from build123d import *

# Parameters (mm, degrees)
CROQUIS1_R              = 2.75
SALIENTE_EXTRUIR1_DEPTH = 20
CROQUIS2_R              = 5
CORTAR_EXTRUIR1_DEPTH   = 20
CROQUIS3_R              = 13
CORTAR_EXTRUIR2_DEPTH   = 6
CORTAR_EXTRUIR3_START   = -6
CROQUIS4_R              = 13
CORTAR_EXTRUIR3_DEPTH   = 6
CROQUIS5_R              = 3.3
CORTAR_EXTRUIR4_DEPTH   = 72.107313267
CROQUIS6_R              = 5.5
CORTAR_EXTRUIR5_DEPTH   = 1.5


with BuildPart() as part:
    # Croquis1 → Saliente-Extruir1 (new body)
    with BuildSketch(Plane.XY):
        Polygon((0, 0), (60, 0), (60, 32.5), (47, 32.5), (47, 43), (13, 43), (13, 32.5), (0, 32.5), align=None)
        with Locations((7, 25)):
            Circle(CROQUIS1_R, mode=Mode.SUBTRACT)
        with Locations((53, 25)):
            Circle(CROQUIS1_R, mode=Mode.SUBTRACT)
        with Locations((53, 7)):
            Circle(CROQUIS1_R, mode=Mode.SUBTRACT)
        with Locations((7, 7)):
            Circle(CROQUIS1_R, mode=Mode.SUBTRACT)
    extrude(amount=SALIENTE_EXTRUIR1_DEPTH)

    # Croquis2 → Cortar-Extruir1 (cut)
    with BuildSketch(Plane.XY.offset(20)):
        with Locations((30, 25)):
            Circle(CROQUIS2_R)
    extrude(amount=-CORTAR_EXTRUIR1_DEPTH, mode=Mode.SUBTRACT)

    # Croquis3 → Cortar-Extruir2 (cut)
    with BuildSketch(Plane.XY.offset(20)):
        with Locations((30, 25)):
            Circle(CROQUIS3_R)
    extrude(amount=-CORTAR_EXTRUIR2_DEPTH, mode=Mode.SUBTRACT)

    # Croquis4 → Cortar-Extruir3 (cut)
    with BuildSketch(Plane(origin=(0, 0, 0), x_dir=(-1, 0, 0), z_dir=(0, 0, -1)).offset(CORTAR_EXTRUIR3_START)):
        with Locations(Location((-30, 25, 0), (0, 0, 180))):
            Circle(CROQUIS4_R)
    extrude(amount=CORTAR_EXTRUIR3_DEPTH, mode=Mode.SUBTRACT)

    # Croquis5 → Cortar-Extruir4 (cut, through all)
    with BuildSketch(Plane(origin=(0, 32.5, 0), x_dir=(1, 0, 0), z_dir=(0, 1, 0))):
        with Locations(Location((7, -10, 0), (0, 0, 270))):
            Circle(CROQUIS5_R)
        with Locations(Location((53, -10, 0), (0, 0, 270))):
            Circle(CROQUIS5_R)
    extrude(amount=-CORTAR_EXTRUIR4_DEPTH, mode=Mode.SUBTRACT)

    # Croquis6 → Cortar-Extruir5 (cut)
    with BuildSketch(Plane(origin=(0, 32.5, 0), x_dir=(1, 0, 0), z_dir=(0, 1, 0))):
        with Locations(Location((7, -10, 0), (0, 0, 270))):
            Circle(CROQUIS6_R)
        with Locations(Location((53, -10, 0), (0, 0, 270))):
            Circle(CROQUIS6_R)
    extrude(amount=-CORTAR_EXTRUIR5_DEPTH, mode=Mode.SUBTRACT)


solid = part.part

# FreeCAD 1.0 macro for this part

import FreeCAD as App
import Part
import Sketcher

doc = App.newDocument("Part")
body = doc.addObject("PartDesign::Body", "Body")

# Sketch on XY plane
sketch1 = body.newObject("Sketcher::SketchObject", "Sketch")
sketch1.AttachmentSupport = (doc.getObject("XY_Plane"), [""])
sketch1.MapMode = "FlatFace"
sketch1.addGeometry(Part.LineSegment(App.Vector(0, 0, 0), App.Vector(60, 0, 0)), False)
sketch1.addGeometry(Part.LineSegment(App.Vector(60, 0, 0), App.Vector(60, 32.5, 0)), False)
sketch1.addGeometry(Part.LineSegment(App.Vector(60, 32.5, 0), App.Vector(47, 32.5, 0)), False)
sketch1.addGeometry(Part.LineSegment(App.Vector(47, 32.5, 0), App.Vector(47, 43, 0)), False)
sketch1.addGeometry(Part.LineSegment(App.Vector(47, 43, 0), App.Vector(13, 43, 0)), False)
sketch1.addGeometry(Part.LineSegment(App.Vector(13, 43, 0), App.Vector(13, 32.5, 0)), False)
sketch1.addGeometry(Part.LineSegment(App.Vector(13, 32.5, 0), App.Vector(0, 32.5, 0)), False)
sketch1.addGeometry(Part.LineSegment(App.Vector(0, 32.5, 0), App.Vector(0, 0, 0)), False)
sketch1.addGeometry(Part.Circle(App.Vector(7, 7, 0), App.Vector(0, 0, 1), 2.75), False)
sketch1.addGeometry(Part.Circle(App.Vector(53, 7, 0), App.Vector(0, 0, 1), 2.75), False)
sketch1.addGeometry(Part.Circle(App.Vector(7, 25, 0), App.Vector(0, 0, 1), 2.75), False)
sketch1.addGeometry(Part.Circle(App.Vector(53, 25, 0), App.Vector(0, 0, 1), 2.75), False)
sketch1.addConstraint(Sketcher.Constraint("Coincident", 0, 2, 1, 1))
sketch1.addConstraint(Sketcher.Constraint("Coincident", 1, 2, 2, 1))
sketch1.addConstraint(Sketcher.Constraint("Coincident", 2, 2, 3, 1))
sketch1.addConstraint(Sketcher.Constraint("Coincident", 3, 2, 4, 1))
sketch1.addConstraint(Sketcher.Constraint("Coincident", 4, 2, 5, 1))
sketch1.addConstraint(Sketcher.Constraint("Coincident", 5, 2, 6, 1))
sketch1.addConstraint(Sketcher.Constraint("Coincident", 6, 2, 7, 1))
sketch1.addConstraint(Sketcher.Constraint("Coincident", 7, 2, 0, 1))
sketch1.addConstraint(Sketcher.Constraint("Horizontal", 0))
sketch1.addConstraint(Sketcher.Constraint("Vertical", 1))
sketch1.addConstraint(Sketcher.Constraint("Horizontal", 2))
sketch1.addConstraint(Sketcher.Constraint("Vertical", 3))
sketch1.addConstraint(Sketcher.Constraint("Horizontal", 4))
sketch1.addConstraint(Sketcher.Constraint("Vertical", 5))
sketch1.addConstraint(Sketcher.Constraint("Horizontal", 6))
sketch1.addConstraint(Sketcher.Constraint("Vertical", 7))
sketch1.addConstraint(Sketcher.Constraint("Coincident", 7, 2, -1, 1))
sketch1.addConstraint(Sketcher.Constraint("Equal", 8, 9))
sketch1.addConstraint(Sketcher.Constraint("Equal", 9, 10))
sketch1.addConstraint(Sketcher.Constraint("Equal", 10, 11))
sketch1.addConstraint(Sketcher.Constraint("Horizontal", 8, 3, 9, 3))
sketch1.addConstraint(Sketcher.Constraint("Horizontal", 10, 3, 11, 3))
sketch1.addConstraint(Sketcher.Constraint("Horizontal", 2, 2, 5, 2))
sketch1.addConstraint(Sketcher.Constraint("Vertical", 8, 3, 10, 3))
sketch1.addConstraint(Sketcher.Constraint("Vertical", 9, 3, 11, 3))
sketch1.addConstraint(Sketcher.Constraint("Equal", 2, 6))
sketch1.addConstraint(Sketcher.Constraint("Diameter", 8, 5.5))
sketch1.addConstraint(Sketcher.Constraint("DistanceX", 0, 1, 0, 2, 60.0))
sketch1.addConstraint(Sketcher.Constraint("DistanceX", 2, 2, 2, 1, 13.0))
sketch1.addConstraint(Sketcher.Constraint("DistanceY", 1, 1, 1, 2, 32.5))
sketch1.addConstraint(Sketcher.Constraint("DistanceY", 3, 1, 3, 2, 10.5))
sketch1.addConstraint(Sketcher.Constraint("DistanceX", -1, 1, 8, 3, 7.0))
sketch1.addConstraint(Sketcher.Constraint("DistanceY", -1, 1, 8, 3, 7.0))
sketch1.addConstraint(Sketcher.Constraint("DistanceX", -1, 1, 9, 3, 53.0))
sketch1.addConstraint(Sketcher.Constraint("DistanceY", -1, 1, 10, 3, 25.0))
pad1 = body.newObject("PartDesign::Pad", "Pad")
pad1.Profile = sketch1
pad1.Length = 20

# Sketch on XY plane
sketch2 = body.newObject("Sketcher::SketchObject", "Sketch001")
sketch2.AttachmentSupport = (doc.getObject("XY_Plane"), [""])
sketch2.MapMode = "FlatFace"
sketch2.AttachmentOffset = App.Placement(App.Vector(0, 0, 20), App.Rotation())
sketch2.addGeometry(Part.Circle(App.Vector(30, 25, 0), App.Vector(0, 0, 1), 5), False)
sketch2.addConstraint(Sketcher.Constraint("Diameter", 0, 10.0))
sketch2.addConstraint(Sketcher.Constraint("DistanceX", -1, 1, 0, 3, 30.0))
sketch2.addConstraint(Sketcher.Constraint("DistanceY", -1, 1, 0, 3, 25.0))
pocket1 = body.newObject("PartDesign::Pocket", "Pocket")
pocket1.Profile = sketch2
pocket1.Length = 20

# Sketch on XY plane
sketch3 = body.newObject("Sketcher::SketchObject", "Sketch002")
sketch3.AttachmentSupport = (doc.getObject("XY_Plane"), [""])
sketch3.MapMode = "FlatFace"
sketch3.AttachmentOffset = App.Placement(App.Vector(0, 0, 20), App.Rotation())
sketch3.addGeometry(Part.Circle(App.Vector(30, 25, 0), App.Vector(0, 0, 1), 13), False)
sketch3.addConstraint(Sketcher.Constraint("Diameter", 0, 26.0))
sketch3.addConstraint(Sketcher.Constraint("DistanceX", -1, 1, 0, 3, 30.0))
sketch3.addConstraint(Sketcher.Constraint("DistanceY", -1, 1, 0, 3, 25.0))
pocket2 = body.newObject("PartDesign::Pocket", "Pocket001")
pocket2.Profile = sketch3
pocket2.Length = 6

# Sketch on XY plane
sketch4 = body.newObject("Sketcher::SketchObject", "Sketch003")
sketch4.AttachmentSupport = (doc.getObject("XY_Plane"), [""])
sketch4.MapMode = "FlatFace"
sketch4.AttachmentOffset = App.Placement(App.Vector(0, 0, 6), App.Rotation())
sketch4.addGeometry(Part.Circle(App.Vector(30, 25, 0), App.Vector(0, 0, 1), 13), False)
sketch4.addConstraint(Sketcher.Constraint("Diameter", 0, 26.0))
sketch4.addConstraint(Sketcher.Constraint("DistanceX", -1, 1, 0, 3, 30.0))
sketch4.addConstraint(Sketcher.Constraint("DistanceY", -1, 1, 0, 3, 25.0))
pocket3 = body.newObject("PartDesign::Pocket", "Pocket002")
pocket3.Profile = sketch4
pocket3.Length = 6

# Sketch on XZ plane
sketch5 = body.newObject("Sketcher::SketchObject", "Sketch004")
sketch5.AttachmentSupport = (doc.getObject("XZ_Plane"), [""])
sketch5.MapMode = "FlatFace"
sketch5.AttachmentOffset = App.Placement(App.Vector(0, 0, -32.5), App.Rotation())
sketch5.addGeometry(Part.Circle(App.Vector(7, 10, 0), App.Vector(0, 0, 1), 3.3), False)
sketch5.addGeometry(Part.Circle(App.Vector(53, 10, 0), App.Vector(0, 0, 1), 3.3), False)
sketch5.addConstraint(Sketcher.Constraint("Equal", 0, 1))
sketch5.addConstraint(Sketcher.Constraint("Horizontal", 0, 3, 1, 3))
sketch5.addConstraint(Sketcher.Constraint("Diameter", 0, 6.6))
sketch5.addConstraint(Sketcher.Constraint("DistanceX", -1, 1, 0, 3, 7.0))
sketch5.addConstraint(Sketcher.Constraint("DistanceY", -1, 1, 0, 3, 10.0))
sketch5.addConstraint(Sketcher.Constraint("DistanceX", -1, 1, 1, 3, 53.0))
pocket4 = body.newObject("PartDesign::Pocket", "Pocket003")
pocket4.Profile = sketch5
pocket4.Type = "ThroughAll"
pocket4.Reversed = True

# Sketch on XZ plane
sketch6 = body.newObject("Sketcher::SketchObject", "Sketch005")
sketch6.AttachmentSupport = (doc.getObject("XZ_Plane"), [""])
sketch6.MapMode = "FlatFace"
sketch6.AttachmentOffset = App.Placement(App.Vector(0, 0, -32.5), App.Rotation())
sketch6.addGeometry(Part.Circle(App.Vector(7, 10, 0), App.Vector(0, 0, 1), 5.5), False)
sketch6.addGeometry(Part.Circle(App.Vector(53, 10, 0), App.Vector(0, 0, 1), 5.5), False)
sketch6.addConstraint(Sketcher.Constraint("Equal", 0, 1))
sketch6.addConstraint(Sketcher.Constraint("Horizontal", 0, 3, 1, 3))
sketch6.addConstraint(Sketcher.Constraint("Diameter", 0, 11.0))
sketch6.addConstraint(Sketcher.Constraint("DistanceX", -1, 1, 0, 3, 7.0))
sketch6.addConstraint(Sketcher.Constraint("DistanceY", -1, 1, 0, 3, 10.0))
sketch6.addConstraint(Sketcher.Constraint("DistanceX", -1, 1, 1, 3, 53.0))
pocket5 = body.newObject("PartDesign::Pocket", "Pocket004")
pocket5.Profile = sketch6
pocket5.Length = 1.5
pocket5.Reversed = True

doc.recompute()
